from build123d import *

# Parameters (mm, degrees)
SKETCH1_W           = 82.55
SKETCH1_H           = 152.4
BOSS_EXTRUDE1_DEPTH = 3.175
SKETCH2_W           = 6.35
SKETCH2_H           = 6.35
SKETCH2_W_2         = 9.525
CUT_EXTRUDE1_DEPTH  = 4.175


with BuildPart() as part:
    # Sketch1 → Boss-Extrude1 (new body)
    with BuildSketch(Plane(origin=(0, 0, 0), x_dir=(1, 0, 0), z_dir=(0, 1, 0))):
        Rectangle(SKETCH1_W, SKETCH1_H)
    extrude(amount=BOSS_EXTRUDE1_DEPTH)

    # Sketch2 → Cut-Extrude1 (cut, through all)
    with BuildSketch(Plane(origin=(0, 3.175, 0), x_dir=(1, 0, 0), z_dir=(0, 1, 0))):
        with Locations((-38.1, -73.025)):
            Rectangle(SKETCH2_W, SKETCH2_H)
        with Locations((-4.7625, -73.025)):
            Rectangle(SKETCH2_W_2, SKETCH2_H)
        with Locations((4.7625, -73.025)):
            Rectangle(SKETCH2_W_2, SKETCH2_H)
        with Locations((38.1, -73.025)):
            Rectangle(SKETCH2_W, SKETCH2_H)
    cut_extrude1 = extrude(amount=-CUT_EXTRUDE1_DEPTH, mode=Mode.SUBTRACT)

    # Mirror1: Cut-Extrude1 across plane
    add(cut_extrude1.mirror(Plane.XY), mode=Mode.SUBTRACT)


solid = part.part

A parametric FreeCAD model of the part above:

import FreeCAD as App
import Part
import Sketcher
Q = App.Units.Quantity


def add_polygon(sketch, points):
    """Adds a closed chain of lines whose ends are joined by coincident constraints."""
    first, n = sketch.GeometryCount, len(points)
    for a, b in zip(points, points[1:] + points[:1]):
        sketch.addGeometry(Part.LineSegment(App.Vector(*a, 0), App.Vector(*b, 0)), False)
    for i in range(n):
        sketch.addConstraint(Sketcher.Constraint("Coincident", first + i, 2, first + (i + 1) % n, 1))

doc = App.newDocument("Part")
body = doc.addObject("PartDesign::Body", "Body")

sketch1 = body.newObject("Sketcher::SketchObject", "Sketch")
sketch1.AttachmentSupport = (doc.getObject("XZ_Plane"), [""])
sketch1.MapMode = "FlatFace"
add_polygon(sketch1, [(-41, -76), (-41, 76), (41, 76), (41, -76)])
sketch1.addConstraint(Sketcher.Constraint("Vertical", 0))
sketch1.addConstraint(Sketcher.Constraint("Horizontal", 1))
sketch1.addConstraint(Sketcher.Constraint("Vertical", 2))
sketch1.addConstraint(Sketcher.Constraint("Horizontal", 3))
sketch1.addConstraint(Sketcher.Constraint("Symmetric", 0, 2, 2, 2, -1, 1))
sketch1.addConstraint(Sketcher.Constraint("DistanceY", 0, 1, 0, 2, Q("6 in")))
sketch1.addConstraint(Sketcher.Constraint("DistanceX", 1, 1, 1, 2, Q("3.25 in")))
pad1 = body.newObject("PartDesign::Pad", "Pad")
pad1.Profile = sketch1
pad1.Length = Q("0.125 in")
pad1.Reversed = True

sketch2 = body.newObject("Sketcher::SketchObject", "Sketch001")
sketch2.AttachmentSupport = (doc.getObject("XZ_Plane"), [""])
sketch2.MapMode = "FlatFace"
sketch2.AttachmentOffset = App.Placement(App.Vector(0, 0, -0.125 * 25.4), App.Rotation())
add_polygon(sketch2, [(-41, 70), (-41, 76), (-35, 76), (-35, 70)])
add_polygon(sketch2, [(-10, 70), (-10, 76), (10, 76), (10, 70)])
add_polygon(sketch2, [(35, 70), (35, 76), (41, 76), (41, 70)])
sketch2.addConstraint(Sketcher.Constraint("Vertical", 0))
sketch2.addConstraint(Sketcher.Constraint("Horizontal", 1))
sketch2.addConstraint(Sketcher.Constraint("Vertical", 2))
sketch2.addConstraint(Sketcher.Constraint("Horizontal", 3))
sketch2.addConstraint(Sketcher.Constraint("Vertical", 4))
sketch2.addConstraint(Sketcher.Constraint("Horizontal", 5))
sketch2.addConstraint(Sketcher.Constraint("Vertical", 6))
sketch2.addConstraint(Sketcher.Constraint("Horizontal", 7))
sketch2.addConstraint(Sketcher.Constraint("Vertical", 8))
sketch2.addConstraint(Sketcher.Constraint("Horizontal", 9))
sketch2.addConstraint(Sketcher.Constraint("Vertical", 10))
sketch2.addConstraint(Sketcher.Constraint("Horizontal", 11))
sketch2.addConstraint(Sketcher.Constraint("Symmetric", 1, 2, 8, 2, -2))
sketch2.addConstraint(Sketcher.Constraint("Symmetric", 3, 2, 10, 2, -2))
sketch2.addConstraint(Sketcher.Constraint("Horizontal", 1, 2, 4, 2))
sketch2.addConstraint(Sketcher.Constraint("Horizontal", 3, 2, 6, 2))
sketch2.addConstraint(Sketcher.Constraint("Equal", 11, 0))
sketch2.addConstraint(Sketcher.Constraint("DistanceY", -1, 1, 0, 2, Q("3 in")))
sketch2.addConstraint(Sketcher.Constraint("DistanceX", 1, 2, 4, 2, Q("1 in")))
sketch2.addConstraint(Sketcher.Constraint("DistanceX", 0, 2, 5, 2, Q("2 in")))
sketch2.addConstraint(Sketcher.Constraint("DistanceX", 5, 2, 8, 2, Q("1 in")))
sketch2.addConstraint(Sketcher.Constraint("DistanceX", 1, 1, 1, 2, Q("0.25 in")))
pocket1 = body.newObject("PartDesign::Pocket", "Pocket")
pocket1.Profile = sketch2
pocket1.Type = "ThroughAll"
pocket1.Reversed = True
doc.recompute()

mirrored = body.newObject("PartDesign::Mirrored", "Mirrored")
mirrored.Originals = [pocket1]
mirrored.MirrorPlane = (doc.getObject("XY_Plane"), [""])
body.Tip = mirrored

doc.recompute()
